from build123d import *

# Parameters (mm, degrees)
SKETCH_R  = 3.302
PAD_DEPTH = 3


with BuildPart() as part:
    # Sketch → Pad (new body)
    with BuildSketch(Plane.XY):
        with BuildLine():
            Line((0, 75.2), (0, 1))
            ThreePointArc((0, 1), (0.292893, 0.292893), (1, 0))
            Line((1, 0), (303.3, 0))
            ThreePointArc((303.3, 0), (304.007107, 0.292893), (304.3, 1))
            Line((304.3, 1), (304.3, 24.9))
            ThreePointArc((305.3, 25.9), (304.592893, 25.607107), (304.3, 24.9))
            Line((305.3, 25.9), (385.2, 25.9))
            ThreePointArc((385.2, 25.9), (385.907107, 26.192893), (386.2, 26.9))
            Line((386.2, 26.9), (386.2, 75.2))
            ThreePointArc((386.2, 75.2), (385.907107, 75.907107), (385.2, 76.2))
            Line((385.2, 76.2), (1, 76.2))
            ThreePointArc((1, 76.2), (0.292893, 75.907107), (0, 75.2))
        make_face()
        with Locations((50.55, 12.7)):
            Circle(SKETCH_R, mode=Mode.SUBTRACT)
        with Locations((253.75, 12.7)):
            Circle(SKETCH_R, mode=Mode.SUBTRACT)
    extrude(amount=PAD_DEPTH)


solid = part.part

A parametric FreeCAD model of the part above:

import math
import FreeCAD as App
import Part
import Sketcher

V = App.Vector
Q = App.Units.Quantity

doc = App.newDocument("Part")
body = doc.addObject("PartDesign::Body", "Body")

sketch1 = body.newObject("Sketcher::SketchObject", "Sketch")
sketch1.AttachmentSupport = (doc.getObject("XY_Plane"), [""])
sketch1.MapMode = "FlatFace"
sketch1.addGeometry([
    Part.LineSegment(V(0, 75.2, 0), V(0, 1, 0)),
    Part.ArcOfCircle(Part.Circle(V(1, 1, 0), V(0, 0, 1), 1), math.radians(180), math.radians(270)),
    Part.LineSegment(V(1, 0, 0), V(303.3, 0, 0)),
    Part.ArcOfCircle(Part.Circle(V(303.3, 1, 0), V(0, 0, 1), 1), math.radians(-90), math.radians(0)),
    Part.LineSegment(V(304.3, 1, 0), V(304.3, 24.9, 0)),
    Part.ArcOfCircle(Part.Circle(V(305.3, 24.9, 0), V(0, 0, 1), 1), math.radians(90), math.radians(180)),
    Part.LineSegment(V(305.3, 25.9, 0), V(385.2, 25.9, 0)),
    Part.ArcOfCircle(Part.Circle(V(385.2, 26.9, 0), V(0, 0, 1), 1), math.radians(-90), math.radians(0)),
    Part.LineSegment(V(386.2, 26.9, 0), V(386.2, 75.2, 0)),
    Part.ArcOfCircle(Part.Circle(V(385.2, 75.2, 0), V(0, 0, 1), 1), math.radians(0), math.radians(90)),
    Part.LineSegment(V(385.2, 76.2, 0), V(1, 76.2, 0)),
    Part.ArcOfCircle(Part.Circle(V(1, 75.2, 0), V(0, 0, 1), 1), math.radians(90), math.radians(180)),
    Part.Circle(V(50.5, 12.7, 0), V(0, 0, 1), 3.3),
    Part.Circle(V(253.8, 12.7, 0), V(0, 0, 1), 3.3),
], False)
sketch1.addConstraint([
    Sketcher.Constraint("Tangent", 0, 2, 1, 1),
    Sketcher.Constraint("Tangent", 1, 2, 2, 1),
    Sketcher.Constraint("Tangent", 2, 2, 3, 1),
    Sketcher.Constraint("Tangent", 3, 2, 4, 1),
    Sketcher.Constraint("Tangent", 4, 2, 5, 2),
    Sketcher.Constraint("Tangent", 5, 1, 6, 1),
    Sketcher.Constraint("Tangent", 6, 2, 7, 1),
    Sketcher.Constraint("Tangent", 7, 2, 8, 1),
    Sketcher.Constraint("Tangent", 8, 2, 9, 1),
    Sketcher.Constraint("Tangent", 9, 2, 10, 1),
    Sketcher.Constraint("Tangent", 10, 2, 11, 1),
    Sketcher.Constraint("Tangent", 11, 2, 0, 1),
    Sketcher.Constraint("Vertical", 0),
    Sketcher.Constraint("Horizontal", 2),
    Sketcher.Constraint("Vertical", 4),
    Sketcher.Constraint("Horizontal", 6),
    Sketcher.Constraint("Vertical", 8),
    Sketcher.Constraint("Horizontal", 10),
    Sketcher.Constraint("Equal", 1, 3),
    Sketcher.Constraint("Equal", 3, 5),
    Sketcher.Constraint("Equal", 5, 7),
    Sketcher.Constraint("Equal", 7, 9),
    Sketcher.Constraint("Equal", 9, 11),
    Sketcher.Constraint("Equal", 12, 13),
    Sketcher.Constraint("PointOnObject", 0, 2, -2),
    Sketcher.Constraint("PointOnObject", 1, 2, -1),
    Sketcher.Constraint("Horizontal", 12, 3, 13, 3),
    Sketcher.Constraint("Radius", 1, Q("0.999999 mm")),
    Sketcher.Constraint("Diameter", 12, Q("6.604 mm")),
    Sketcher.Constraint("DistanceX", 2, 1, 2, 2, Q("302.3 mm")),
    Sketcher.Constraint("DistanceX", 6, 1, 6, 2, Q("79.9 mm")),
    Sketcher.Constraint("DistanceY", 0, 2, 0, 1, Q("74.2 mm")),
    Sketcher.Constraint("DistanceY", 4, 1, 4, 2, Q("23.9 mm")),
    Sketcher.Constraint("DistanceY", -1, 1, 12, 3, Q("12.7 mm")),
    Sketcher.Constraint("DistanceX", 12, 3, 13, 3, Q("203.2 mm")),
    Sketcher.Constraint("DistanceX", -1, 1, 12, 3, Q("50.55 mm")),
])
pad1 = body.newObject("PartDesign::Pad", "Pad")
pad1.Profile = sketch1
pad1.Length = 3

doc.recompute()
